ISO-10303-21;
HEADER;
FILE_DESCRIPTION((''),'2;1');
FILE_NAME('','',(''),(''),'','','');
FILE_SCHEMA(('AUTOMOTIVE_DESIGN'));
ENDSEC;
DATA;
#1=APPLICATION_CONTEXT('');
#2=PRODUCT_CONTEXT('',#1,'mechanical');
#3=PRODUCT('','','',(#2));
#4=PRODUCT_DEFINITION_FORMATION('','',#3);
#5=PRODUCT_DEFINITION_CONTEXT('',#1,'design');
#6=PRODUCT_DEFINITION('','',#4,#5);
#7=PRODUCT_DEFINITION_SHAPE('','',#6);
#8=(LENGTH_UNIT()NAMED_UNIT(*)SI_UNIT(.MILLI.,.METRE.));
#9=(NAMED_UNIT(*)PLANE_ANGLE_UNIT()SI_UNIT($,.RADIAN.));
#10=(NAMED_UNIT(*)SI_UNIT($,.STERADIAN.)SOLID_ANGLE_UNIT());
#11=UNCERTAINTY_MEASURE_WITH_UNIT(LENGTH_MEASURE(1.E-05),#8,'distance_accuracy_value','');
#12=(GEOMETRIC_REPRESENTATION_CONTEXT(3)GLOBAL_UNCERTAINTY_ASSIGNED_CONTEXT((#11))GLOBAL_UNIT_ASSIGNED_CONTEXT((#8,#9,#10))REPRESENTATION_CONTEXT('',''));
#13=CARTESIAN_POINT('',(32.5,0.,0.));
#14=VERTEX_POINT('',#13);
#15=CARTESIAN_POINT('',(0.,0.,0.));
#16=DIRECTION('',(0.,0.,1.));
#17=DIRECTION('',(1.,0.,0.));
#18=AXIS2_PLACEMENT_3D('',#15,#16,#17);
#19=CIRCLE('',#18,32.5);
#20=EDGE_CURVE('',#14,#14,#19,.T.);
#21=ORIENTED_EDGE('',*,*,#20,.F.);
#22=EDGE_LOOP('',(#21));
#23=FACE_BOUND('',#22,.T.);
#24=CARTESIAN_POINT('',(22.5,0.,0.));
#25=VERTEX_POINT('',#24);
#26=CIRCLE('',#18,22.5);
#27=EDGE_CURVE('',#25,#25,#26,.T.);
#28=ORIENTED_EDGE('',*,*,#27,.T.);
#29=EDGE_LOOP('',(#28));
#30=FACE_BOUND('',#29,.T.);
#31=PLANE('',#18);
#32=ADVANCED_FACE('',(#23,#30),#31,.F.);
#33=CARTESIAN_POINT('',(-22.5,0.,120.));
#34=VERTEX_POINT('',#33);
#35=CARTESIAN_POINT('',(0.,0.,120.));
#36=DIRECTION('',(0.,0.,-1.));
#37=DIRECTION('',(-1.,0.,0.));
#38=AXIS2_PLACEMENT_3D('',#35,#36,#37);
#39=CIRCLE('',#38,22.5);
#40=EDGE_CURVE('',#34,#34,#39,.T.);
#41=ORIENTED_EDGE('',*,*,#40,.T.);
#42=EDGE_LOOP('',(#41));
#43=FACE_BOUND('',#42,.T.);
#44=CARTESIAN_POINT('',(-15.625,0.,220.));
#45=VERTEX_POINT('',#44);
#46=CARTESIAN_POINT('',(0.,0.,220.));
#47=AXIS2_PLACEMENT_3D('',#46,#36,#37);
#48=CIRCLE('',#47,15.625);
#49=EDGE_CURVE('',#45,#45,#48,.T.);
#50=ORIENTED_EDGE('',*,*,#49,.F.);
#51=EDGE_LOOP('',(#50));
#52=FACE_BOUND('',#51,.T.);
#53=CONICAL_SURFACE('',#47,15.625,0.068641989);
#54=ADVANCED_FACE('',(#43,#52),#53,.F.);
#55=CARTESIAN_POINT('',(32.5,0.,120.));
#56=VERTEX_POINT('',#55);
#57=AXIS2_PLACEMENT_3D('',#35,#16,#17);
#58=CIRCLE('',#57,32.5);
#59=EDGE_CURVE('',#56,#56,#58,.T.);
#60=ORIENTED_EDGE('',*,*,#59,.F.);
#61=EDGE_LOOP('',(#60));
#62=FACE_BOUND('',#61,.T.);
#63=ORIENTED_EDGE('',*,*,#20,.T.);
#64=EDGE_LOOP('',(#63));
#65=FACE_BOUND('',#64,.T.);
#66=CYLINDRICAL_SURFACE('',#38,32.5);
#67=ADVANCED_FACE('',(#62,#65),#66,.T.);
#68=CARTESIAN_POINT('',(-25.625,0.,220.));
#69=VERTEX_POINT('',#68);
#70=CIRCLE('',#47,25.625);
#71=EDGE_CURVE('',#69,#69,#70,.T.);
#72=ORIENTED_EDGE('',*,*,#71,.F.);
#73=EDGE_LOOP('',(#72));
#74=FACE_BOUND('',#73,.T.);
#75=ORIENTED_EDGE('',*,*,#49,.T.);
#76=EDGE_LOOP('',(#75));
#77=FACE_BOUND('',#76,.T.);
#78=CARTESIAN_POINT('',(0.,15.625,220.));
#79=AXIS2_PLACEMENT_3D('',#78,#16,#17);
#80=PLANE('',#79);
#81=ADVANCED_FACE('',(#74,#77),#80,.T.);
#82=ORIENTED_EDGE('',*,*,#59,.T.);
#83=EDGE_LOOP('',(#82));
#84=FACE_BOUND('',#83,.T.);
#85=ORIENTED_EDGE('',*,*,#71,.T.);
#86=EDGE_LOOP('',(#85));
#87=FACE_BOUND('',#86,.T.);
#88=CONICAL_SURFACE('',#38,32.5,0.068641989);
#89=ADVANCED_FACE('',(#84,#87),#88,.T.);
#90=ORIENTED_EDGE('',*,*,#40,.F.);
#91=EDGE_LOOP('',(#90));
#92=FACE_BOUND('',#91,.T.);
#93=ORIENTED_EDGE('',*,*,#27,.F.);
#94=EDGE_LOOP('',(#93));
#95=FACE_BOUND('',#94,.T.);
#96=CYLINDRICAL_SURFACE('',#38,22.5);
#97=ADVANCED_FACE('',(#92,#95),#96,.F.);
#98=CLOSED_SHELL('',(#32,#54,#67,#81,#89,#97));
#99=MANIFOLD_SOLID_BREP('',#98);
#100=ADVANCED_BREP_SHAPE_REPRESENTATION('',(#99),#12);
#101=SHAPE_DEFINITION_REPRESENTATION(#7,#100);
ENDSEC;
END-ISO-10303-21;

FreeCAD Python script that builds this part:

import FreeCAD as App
import Part
import Sketcher
from FreeCAD import Vector


def add_polygon(sketch, points):
    """Adds a closed chain of lines whose ends are joined by coincident constraints."""
    first, n = sketch.GeometryCount, len(points)
    for a, b in zip(points, points[1:] + points[:1]):
        sketch.addGeometry(Part.LineSegment(App.Vector(*a, 0), App.Vector(*b, 0)), False)
    for i in range(n):
        sketch.addConstraint(Sketcher.Constraint("Coincident", first + i, 2, first + (i + 1) % n, 1))

doc = App.newDocument("Part")
body = doc.addObject("PartDesign::Body", "Body")

sketch1 = body.newObject("Sketcher::SketchObject", "Sketch")
sketch1.AttachmentSupport = (doc.getObject("XY_Plane"), [""])
sketch1.MapMode = "FlatFace"
sketch1.addGeometry([
    Part.Circle(Vector(0, 0, 0), Vector(0, 0, 1), 32),
    Part.Circle(Vector(0, 0, 0), Vector(0, 0, 1), 22),
], False)
sketch1.addConstraint([
    Sketcher.Constraint("Coincident", 0, 3, -1, 1),
    Sketcher.Constraint("Coincident", 1, 3, -1, 1),
    Sketcher.Constraint("Diameter", 0, 65.0),
    Sketcher.Constraint("Diameter", 1, 45.0),
])
pad1 = body.newObject("PartDesign::Pad", "Pad")
pad1.Profile = sketch1
pad1.Length = 120

sketch2 = body.newObject("Sketcher::SketchObject", "Sketch001")
sketch2.AttachmentSupport = (doc.getObject("YZ_Plane"), [""])
sketch2.MapMode = "FlatFace"
add_polygon(sketch2, [(32, 120), (26, 220), (16, 220), (22, 120)])
sketch2.addConstraint([
    Sketcher.Constraint("Horizontal", 1),
    Sketcher.Constraint("Horizontal", 3),
    Sketcher.Constraint("Parallel", 0, 2),
    Sketcher.Constraint("DistanceX", 1, 2, 1, 1, 10.0),
    Sketcher.Constraint("DistanceY", -1, 1, 0, 2, 220.0),
    Sketcher.Constraint("DistanceY", -1, 1, 2, 2, 120.0),
    Sketcher.Constraint("DistanceX", -1, 1, 2, 2, 22.5),
    Sketcher.Constraint("DistanceX", -1, 1, 0, 2, 25.625),
])
revolution = body.newObject("PartDesign::Revolution", "Revolution")
revolution.Profile = sketch2
revolution.ReferenceAxis = (sketch2, ["V_Axis"])
revolution.Angle = 360

doc.recompute()
